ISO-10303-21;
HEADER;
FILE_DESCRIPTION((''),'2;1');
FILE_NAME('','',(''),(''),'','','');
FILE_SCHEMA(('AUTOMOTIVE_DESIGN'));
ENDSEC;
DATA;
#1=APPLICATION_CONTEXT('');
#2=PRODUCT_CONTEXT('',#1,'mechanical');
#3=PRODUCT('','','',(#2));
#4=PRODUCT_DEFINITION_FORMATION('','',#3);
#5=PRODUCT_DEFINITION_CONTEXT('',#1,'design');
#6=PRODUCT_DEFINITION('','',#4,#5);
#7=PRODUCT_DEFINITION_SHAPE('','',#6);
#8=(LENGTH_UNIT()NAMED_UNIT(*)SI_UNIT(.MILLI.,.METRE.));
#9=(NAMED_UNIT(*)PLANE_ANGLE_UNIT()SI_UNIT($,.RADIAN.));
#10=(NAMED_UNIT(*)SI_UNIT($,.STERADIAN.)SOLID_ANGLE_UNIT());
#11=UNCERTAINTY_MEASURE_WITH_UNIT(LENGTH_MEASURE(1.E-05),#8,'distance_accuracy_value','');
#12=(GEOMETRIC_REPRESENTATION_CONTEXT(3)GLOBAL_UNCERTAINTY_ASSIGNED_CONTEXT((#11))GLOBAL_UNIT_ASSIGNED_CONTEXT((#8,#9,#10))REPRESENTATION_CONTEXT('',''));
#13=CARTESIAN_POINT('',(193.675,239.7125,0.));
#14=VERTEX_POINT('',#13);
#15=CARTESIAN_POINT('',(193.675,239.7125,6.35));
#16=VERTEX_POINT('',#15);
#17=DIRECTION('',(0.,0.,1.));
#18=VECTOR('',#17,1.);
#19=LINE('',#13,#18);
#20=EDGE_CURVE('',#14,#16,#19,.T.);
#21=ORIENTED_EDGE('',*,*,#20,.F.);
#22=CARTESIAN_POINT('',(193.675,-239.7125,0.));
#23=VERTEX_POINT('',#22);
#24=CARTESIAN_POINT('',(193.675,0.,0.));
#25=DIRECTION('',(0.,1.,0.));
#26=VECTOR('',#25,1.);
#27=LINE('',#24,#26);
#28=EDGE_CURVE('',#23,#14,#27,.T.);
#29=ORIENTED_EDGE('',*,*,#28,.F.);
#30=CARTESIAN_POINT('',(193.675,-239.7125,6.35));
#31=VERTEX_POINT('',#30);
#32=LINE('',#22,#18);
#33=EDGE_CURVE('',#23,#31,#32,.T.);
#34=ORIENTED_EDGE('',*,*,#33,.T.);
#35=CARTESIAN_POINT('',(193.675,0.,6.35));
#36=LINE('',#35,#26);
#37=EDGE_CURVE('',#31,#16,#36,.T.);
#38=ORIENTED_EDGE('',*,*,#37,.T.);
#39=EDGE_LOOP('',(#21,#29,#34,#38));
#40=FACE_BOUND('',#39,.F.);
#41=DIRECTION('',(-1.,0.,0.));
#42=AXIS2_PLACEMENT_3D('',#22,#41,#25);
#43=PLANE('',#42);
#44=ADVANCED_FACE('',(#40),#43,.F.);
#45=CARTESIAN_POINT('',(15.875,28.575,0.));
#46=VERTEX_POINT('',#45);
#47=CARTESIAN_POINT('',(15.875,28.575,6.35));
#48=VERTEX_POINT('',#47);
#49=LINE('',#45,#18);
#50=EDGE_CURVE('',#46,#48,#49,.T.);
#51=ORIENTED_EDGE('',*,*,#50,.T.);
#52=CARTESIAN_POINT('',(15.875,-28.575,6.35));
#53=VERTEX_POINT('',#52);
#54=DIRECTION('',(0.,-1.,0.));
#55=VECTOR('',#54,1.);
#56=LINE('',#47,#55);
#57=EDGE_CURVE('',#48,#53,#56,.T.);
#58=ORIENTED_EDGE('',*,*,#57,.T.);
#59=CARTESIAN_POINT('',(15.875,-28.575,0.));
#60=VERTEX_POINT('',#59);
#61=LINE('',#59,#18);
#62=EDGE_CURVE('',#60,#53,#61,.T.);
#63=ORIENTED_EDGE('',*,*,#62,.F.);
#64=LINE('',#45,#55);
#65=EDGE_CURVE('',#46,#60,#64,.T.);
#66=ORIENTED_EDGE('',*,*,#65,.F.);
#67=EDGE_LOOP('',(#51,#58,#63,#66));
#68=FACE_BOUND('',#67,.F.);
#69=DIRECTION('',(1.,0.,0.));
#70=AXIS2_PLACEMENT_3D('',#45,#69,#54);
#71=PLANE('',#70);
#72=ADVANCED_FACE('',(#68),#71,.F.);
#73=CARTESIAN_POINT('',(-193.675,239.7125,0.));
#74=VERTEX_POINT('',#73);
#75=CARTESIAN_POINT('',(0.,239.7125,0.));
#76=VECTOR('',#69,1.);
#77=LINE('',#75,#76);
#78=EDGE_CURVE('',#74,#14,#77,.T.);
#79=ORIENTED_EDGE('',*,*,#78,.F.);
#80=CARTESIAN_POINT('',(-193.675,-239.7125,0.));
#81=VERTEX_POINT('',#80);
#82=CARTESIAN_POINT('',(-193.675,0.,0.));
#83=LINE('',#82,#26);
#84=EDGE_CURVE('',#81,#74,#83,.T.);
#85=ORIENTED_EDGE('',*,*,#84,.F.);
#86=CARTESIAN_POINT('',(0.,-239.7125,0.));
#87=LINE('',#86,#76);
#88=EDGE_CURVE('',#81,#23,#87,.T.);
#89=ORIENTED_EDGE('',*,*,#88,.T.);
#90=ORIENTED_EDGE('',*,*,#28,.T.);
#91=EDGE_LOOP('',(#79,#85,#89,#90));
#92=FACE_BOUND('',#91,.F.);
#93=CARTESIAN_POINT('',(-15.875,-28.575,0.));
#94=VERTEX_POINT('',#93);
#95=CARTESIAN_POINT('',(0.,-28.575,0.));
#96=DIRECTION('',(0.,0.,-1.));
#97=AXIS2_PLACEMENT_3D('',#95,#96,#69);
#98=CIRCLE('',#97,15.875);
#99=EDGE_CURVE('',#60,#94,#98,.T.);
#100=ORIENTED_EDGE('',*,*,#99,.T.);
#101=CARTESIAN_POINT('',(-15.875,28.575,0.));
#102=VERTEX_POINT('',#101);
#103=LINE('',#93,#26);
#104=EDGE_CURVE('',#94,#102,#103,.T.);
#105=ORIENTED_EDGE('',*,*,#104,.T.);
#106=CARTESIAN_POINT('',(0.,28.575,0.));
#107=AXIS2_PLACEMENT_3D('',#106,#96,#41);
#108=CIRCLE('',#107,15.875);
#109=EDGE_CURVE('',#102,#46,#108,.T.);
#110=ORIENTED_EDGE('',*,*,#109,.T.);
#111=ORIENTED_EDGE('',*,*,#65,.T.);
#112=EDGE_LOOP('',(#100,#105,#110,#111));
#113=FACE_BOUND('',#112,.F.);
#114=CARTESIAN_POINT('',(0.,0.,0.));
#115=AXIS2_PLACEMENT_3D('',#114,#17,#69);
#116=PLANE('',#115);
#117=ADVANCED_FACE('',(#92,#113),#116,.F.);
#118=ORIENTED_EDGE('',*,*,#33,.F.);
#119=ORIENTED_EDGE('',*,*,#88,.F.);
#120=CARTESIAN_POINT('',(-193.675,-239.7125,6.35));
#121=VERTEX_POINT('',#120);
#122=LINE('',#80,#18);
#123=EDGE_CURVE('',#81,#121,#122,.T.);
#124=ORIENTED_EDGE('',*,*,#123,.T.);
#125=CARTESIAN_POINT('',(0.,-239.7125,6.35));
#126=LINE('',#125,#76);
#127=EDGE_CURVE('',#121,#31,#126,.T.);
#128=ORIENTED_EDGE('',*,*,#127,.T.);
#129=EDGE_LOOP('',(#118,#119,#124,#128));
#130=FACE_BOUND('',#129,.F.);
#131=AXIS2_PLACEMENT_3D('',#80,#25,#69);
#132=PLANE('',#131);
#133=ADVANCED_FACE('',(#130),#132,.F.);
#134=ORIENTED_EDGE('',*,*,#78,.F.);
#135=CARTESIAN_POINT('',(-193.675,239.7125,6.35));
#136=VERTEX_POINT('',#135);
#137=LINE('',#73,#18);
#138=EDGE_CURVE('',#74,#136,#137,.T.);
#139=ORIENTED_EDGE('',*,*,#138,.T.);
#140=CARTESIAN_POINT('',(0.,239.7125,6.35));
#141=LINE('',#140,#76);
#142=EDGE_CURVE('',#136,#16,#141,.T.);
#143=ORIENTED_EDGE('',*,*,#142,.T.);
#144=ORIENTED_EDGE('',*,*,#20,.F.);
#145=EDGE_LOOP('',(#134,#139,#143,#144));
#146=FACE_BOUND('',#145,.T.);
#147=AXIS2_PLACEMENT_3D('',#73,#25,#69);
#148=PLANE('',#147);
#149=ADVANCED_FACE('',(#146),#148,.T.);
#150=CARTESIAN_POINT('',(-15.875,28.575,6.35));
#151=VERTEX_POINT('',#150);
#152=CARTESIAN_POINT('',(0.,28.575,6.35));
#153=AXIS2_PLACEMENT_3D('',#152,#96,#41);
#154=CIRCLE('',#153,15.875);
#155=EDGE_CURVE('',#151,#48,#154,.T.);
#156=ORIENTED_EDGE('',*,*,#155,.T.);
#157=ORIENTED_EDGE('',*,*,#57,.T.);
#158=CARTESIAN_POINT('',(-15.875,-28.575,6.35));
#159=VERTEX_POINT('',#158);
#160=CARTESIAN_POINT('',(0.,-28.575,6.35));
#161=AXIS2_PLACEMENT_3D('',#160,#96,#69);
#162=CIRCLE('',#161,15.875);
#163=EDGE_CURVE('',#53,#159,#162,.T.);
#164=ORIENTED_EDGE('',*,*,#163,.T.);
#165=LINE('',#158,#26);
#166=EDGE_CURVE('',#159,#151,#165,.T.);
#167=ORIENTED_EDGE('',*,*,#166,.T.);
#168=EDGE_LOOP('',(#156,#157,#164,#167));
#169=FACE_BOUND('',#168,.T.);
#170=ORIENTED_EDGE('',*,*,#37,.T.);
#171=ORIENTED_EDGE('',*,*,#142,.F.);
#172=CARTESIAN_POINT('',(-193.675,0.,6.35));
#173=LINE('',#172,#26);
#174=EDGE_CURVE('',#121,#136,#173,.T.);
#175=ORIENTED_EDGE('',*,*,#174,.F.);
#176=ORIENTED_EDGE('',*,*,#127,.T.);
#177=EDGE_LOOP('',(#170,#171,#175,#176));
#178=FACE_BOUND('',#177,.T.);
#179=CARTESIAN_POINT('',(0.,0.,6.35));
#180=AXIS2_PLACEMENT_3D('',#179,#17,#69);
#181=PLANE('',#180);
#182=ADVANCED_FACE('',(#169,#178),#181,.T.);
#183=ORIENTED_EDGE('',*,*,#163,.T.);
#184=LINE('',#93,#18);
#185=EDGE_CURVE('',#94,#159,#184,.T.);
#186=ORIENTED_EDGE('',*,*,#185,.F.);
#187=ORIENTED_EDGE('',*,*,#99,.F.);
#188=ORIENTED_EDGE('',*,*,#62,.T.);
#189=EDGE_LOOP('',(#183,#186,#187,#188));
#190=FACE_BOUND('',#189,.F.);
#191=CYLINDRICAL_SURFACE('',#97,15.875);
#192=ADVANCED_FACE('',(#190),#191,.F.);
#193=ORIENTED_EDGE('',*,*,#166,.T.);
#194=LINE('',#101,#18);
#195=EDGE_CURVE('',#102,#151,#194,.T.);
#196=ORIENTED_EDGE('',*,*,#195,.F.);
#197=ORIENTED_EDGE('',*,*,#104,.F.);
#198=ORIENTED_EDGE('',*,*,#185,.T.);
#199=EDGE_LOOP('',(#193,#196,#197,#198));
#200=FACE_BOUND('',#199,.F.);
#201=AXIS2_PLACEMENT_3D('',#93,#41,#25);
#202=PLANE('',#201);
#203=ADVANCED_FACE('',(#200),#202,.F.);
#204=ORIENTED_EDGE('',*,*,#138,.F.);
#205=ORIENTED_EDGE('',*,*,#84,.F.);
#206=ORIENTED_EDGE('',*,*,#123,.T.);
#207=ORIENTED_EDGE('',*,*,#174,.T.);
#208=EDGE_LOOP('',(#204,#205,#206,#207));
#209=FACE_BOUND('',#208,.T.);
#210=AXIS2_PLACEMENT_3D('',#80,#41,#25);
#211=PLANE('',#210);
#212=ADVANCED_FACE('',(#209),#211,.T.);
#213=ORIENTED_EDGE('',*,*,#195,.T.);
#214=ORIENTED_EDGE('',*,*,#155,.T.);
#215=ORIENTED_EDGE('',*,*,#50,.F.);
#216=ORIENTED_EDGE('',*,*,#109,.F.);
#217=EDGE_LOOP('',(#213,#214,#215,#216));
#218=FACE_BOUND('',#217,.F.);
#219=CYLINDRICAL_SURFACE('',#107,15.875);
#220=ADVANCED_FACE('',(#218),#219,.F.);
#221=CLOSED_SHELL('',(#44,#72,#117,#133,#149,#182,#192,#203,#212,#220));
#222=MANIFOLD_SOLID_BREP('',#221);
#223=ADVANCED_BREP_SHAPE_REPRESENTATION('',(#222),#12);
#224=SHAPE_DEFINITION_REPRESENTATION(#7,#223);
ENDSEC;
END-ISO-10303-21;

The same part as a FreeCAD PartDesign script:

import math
import FreeCAD as App
import Part
import Sketcher
from FreeCAD import Vector
Q = App.Units.Quantity

doc = App.newDocument("Part")
body = doc.addObject("PartDesign::Body", "Body")

# Sketch on XY plane
sketch1 = body.newObject("Sketcher::SketchObject", "Sketch")
sketch1.AttachmentSupport = (doc.getObject("XY_Plane"), [""])
sketch1.MapMode = "FlatFace"
sketch1.addGeometry([
    Part.LineSegment(Vector(-193.675, 239.7125, 0), Vector(-193.675, -239.7125, 0)),  # 0
    Part.LineSegment(Vector(-193.675, -239.7125, 0), Vector(193.675, -239.7125, 0)),  # 1
    Part.LineSegment(Vector(193.675, -239.7125, 0), Vector(193.675, 239.7125, 0)),  # 2
    Part.LineSegment(Vector(193.675, 239.7125, 0), Vector(-193.675, 239.7125, 0)),  # 3
    Part.ArcOfCircle(Part.Circle(Vector(0, -28.575, 0), Vector(0, 0, 1), 15.875), math.radians(180), math.radians(360)),  # 4
    Part.LineSegment(Vector(-15.875, -28.575, 0), Vector(-15.875, 28.575, 0)),  # 5
    Part.ArcOfCircle(Part.Circle(Vector(0, 28.575, 0), Vector(0, 0, 1), 15.875), math.radians(0), math.radians(180)),  # 6
    Part.LineSegment(Vector(15.875, 28.575, 0), Vector(15.875, -28.575, 0)),  # 7
], False)
sketch1.addConstraint([
    Sketcher.Constraint("Coincident", 0, 2, 1, 1),
    Sketcher.Constraint("Coincident", 1, 2, 2, 1),
    Sketcher.Constraint("Coincident", 2, 2, 3, 1),
    Sketcher.Constraint("Coincident", 3, 2, 0, 1),
    Sketcher.Constraint("Tangent", 4, 1, 5, 1),
    Sketcher.Constraint("Tangent", 5, 2, 6, 2),
    Sketcher.Constraint("Tangent", 6, 1, 7, 1),
    Sketcher.Constraint("Tangent", 7, 2, 4, 2),
    Sketcher.Constraint("Vertical", 0),
    Sketcher.Constraint("Horizontal", 1),
    Sketcher.Constraint("Vertical", 2),
    Sketcher.Constraint("Horizontal", 3),
    Sketcher.Constraint("Vertical", 5),
    Sketcher.Constraint("Vertical", 7),
    Sketcher.Constraint("Symmetric", 4, 3, 6, 3, -1, 1),
    Sketcher.Constraint("Symmetric", 0, 2, 2, 2, -1, 1),
    Sketcher.Constraint("Radius", 4, Q("0.625 in")),
    Sketcher.Constraint("DistanceX", 0, 2, 4, 1, Q("7 in")),
    Sketcher.Constraint("DistanceY", 5, 1, 5, 2, Q("2.25 in")),
    Sketcher.Constraint("DistanceY", 0, 2, 0, 1, Q("18.875 in")),
])
pad1 = body.newObject("PartDesign::Pad", "Pad")
pad1.Profile = sketch1
pad1.Length = Q("0.25 in")

doc.recompute()
